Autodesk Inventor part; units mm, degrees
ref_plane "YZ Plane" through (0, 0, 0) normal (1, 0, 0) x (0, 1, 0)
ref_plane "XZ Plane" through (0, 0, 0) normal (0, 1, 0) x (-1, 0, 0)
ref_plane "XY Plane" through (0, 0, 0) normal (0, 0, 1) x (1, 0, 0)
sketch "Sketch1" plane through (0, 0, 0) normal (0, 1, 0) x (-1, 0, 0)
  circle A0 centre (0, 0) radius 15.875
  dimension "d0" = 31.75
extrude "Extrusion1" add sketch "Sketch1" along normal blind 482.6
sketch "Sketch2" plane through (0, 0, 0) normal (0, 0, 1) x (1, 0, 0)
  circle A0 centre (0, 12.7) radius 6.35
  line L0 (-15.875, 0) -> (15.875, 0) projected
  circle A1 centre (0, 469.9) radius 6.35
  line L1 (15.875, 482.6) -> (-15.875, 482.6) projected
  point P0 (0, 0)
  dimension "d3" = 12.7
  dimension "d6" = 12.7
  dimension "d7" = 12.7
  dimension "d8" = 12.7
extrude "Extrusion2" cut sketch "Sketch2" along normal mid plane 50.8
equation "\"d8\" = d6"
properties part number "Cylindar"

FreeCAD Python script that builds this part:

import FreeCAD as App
import Part
import Sketcher

V = App.Vector
Q = App.Units.Quantity

doc = App.newDocument("Part")
body = doc.addObject("PartDesign::Body", "Body")

# Sketch on XZ plane
sketch1 = body.newObject("Sketcher::SketchObject", "Sketch")
sketch1.AttachmentSupport = (doc.getObject("XZ_Plane"), [""])
sketch1.MapMode = "FlatFace"
sketch1.addGeometry(Part.Circle(V(0, 0, 0), V(0, 0, 1), 16), False)
sketch1.addConstraint([
    Sketcher.Constraint("Coincident", 0, 3, -1, 1),
    Sketcher.Constraint("Diameter", 0, Q("1.25 in")),
])
pad1 = body.newObject("PartDesign::Pad", "Pad")
pad1.Profile = sketch1
pad1.Length = Q("19 in")
pad1.Reversed = True

# Sketch on XY plane
sketch2 = body.newObject("Sketcher::SketchObject", "Sketch001")
sketch2.AttachmentSupport = (doc.getObject("XY_Plane"), [""])
sketch2.MapMode = "FlatFace"
sketch2.addGeometry([
    Part.Circle(V(0, 13, 0), V(0, 0, 1), 6),
    Part.Circle(V(0, 470, 0), V(0, 0, 1), 6),
], False)
sketch2.addConstraint([
    Sketcher.Constraint("Equal", 0, 1),
    Sketcher.Constraint("PointOnObject", 0, 3, -2),
    Sketcher.Constraint("PointOnObject", 1, 3, -2),
    Sketcher.Constraint("Diameter", 0, Q("0.5 in")),
    Sketcher.Constraint("DistanceY", -1, 1, 0, 3, Q("0.5 in")),
    Sketcher.Constraint("DistanceY", 0, 3, 1, 3, Q("18 in")),
])
pocket1 = body.newObject("PartDesign::Pocket", "Pocket")
pocket1.Profile = sketch2
pocket1.Length = Q("2 in")
pocket1.Midplane = True

doc.recompute()
